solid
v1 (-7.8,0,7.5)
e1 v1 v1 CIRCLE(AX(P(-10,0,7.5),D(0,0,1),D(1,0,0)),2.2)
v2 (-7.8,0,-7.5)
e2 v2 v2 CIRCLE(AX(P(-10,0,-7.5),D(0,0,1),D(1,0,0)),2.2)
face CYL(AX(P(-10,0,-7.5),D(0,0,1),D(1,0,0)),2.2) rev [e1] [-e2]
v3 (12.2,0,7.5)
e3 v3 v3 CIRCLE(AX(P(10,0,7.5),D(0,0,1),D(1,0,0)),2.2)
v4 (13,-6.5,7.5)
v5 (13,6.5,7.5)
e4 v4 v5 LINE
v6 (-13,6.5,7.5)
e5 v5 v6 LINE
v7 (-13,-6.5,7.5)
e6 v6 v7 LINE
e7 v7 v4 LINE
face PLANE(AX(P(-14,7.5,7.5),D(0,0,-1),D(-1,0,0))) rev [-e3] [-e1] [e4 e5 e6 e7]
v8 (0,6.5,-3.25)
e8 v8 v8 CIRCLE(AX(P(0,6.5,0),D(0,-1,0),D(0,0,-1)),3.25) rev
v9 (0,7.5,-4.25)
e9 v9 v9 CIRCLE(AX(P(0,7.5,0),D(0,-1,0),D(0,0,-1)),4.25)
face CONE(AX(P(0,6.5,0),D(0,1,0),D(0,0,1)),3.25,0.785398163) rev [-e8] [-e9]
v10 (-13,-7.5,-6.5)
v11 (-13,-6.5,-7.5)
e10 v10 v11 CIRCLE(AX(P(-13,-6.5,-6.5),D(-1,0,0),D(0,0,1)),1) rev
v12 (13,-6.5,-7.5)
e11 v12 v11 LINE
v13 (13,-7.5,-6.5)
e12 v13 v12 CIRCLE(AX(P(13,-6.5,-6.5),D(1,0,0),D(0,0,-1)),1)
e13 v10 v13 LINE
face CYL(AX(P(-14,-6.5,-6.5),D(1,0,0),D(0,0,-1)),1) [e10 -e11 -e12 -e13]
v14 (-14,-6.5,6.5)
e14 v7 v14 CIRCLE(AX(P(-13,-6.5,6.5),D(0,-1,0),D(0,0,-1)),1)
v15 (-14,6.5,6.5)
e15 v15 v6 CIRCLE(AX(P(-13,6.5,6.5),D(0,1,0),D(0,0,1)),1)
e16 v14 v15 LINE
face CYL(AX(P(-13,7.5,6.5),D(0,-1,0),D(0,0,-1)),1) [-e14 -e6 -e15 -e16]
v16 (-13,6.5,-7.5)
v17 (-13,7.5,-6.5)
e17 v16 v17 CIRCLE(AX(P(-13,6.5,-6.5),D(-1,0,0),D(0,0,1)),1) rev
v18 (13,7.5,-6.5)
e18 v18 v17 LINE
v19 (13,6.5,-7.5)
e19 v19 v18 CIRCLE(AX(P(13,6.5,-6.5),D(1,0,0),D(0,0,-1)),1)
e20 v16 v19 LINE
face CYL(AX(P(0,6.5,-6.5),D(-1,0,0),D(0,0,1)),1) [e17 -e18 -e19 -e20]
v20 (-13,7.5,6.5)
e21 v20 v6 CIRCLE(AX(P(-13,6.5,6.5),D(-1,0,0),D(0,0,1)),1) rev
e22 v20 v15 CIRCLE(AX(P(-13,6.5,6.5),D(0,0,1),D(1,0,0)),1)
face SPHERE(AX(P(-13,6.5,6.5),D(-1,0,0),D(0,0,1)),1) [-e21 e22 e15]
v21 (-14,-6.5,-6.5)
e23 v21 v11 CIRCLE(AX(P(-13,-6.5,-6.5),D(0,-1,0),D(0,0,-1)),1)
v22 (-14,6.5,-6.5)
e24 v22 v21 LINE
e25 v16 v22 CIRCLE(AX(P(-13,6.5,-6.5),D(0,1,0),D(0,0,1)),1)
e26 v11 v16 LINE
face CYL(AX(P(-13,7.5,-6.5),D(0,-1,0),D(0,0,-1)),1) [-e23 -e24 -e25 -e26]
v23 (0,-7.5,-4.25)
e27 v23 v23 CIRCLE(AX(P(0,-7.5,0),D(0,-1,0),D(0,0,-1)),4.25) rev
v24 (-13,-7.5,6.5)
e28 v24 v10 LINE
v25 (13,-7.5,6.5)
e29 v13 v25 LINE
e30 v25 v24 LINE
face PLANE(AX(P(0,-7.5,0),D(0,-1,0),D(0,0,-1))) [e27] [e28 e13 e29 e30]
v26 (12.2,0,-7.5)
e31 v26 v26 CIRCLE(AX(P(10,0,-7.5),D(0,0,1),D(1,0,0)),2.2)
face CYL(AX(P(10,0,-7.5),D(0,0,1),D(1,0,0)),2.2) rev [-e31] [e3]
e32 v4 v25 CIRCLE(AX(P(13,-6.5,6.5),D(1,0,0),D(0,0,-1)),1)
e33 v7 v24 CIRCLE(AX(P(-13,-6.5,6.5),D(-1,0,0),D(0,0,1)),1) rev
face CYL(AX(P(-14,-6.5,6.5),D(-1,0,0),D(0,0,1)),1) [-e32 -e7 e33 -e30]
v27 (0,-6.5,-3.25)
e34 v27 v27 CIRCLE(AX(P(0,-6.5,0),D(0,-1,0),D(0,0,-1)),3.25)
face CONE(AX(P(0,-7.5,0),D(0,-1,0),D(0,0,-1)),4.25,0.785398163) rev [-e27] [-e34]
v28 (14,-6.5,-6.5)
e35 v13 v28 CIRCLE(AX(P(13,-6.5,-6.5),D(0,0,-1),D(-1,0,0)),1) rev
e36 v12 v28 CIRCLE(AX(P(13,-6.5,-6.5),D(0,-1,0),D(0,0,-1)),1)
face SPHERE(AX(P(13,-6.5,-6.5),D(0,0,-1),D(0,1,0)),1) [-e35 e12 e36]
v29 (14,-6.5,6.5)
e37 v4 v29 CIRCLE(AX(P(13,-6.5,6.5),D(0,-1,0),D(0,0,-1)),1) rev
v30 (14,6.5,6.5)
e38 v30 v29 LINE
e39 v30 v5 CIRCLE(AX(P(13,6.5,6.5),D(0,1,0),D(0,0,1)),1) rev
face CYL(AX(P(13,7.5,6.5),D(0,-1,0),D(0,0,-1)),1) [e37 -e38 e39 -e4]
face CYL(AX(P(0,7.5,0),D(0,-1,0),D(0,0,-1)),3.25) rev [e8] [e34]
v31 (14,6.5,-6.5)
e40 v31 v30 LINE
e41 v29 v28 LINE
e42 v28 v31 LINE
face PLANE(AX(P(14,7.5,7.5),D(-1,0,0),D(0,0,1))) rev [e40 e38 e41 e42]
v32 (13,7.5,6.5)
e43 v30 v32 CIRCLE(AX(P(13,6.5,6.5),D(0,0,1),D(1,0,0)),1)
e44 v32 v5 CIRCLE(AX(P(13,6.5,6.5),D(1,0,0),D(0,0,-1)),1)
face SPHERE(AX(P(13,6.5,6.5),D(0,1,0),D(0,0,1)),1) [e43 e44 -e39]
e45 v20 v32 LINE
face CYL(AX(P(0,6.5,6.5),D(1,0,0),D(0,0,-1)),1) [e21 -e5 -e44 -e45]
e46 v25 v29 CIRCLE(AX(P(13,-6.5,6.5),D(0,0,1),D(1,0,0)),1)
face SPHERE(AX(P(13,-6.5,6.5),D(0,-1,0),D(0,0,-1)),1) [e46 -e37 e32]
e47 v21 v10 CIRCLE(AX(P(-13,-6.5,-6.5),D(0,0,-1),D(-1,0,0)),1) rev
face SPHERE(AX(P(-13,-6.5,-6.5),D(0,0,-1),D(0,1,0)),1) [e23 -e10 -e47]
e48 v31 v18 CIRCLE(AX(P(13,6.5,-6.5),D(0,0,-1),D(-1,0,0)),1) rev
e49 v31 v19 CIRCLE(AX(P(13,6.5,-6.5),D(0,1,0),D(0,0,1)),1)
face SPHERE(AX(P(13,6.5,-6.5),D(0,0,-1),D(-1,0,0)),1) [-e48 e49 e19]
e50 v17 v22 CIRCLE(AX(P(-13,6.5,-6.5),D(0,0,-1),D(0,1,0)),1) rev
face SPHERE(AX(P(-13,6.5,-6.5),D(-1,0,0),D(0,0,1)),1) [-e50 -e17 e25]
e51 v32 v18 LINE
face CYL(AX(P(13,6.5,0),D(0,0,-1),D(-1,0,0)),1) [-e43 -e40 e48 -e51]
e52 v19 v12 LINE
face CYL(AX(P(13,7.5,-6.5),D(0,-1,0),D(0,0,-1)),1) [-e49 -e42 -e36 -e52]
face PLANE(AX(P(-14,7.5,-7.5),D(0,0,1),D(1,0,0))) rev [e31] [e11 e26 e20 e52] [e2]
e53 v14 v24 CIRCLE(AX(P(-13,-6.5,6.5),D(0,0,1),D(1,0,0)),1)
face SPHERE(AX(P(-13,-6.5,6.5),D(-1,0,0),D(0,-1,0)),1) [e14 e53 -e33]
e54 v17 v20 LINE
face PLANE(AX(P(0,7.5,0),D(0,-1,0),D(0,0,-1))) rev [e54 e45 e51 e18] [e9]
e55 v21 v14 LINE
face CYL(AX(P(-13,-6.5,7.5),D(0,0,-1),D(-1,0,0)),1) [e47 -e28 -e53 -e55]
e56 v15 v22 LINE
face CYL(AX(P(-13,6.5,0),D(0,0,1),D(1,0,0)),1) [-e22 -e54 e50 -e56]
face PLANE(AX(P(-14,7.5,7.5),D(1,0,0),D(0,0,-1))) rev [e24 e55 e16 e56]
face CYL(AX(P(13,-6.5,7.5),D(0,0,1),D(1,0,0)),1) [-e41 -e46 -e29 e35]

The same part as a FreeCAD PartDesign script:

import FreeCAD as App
import Part
import Sketcher

V = App.Vector
Q = App.Units.Quantity


def edges_at(feature, points):
    """Names of the edges that pass closest to the given points."""
    edges = feature.Shape.Edges
    near = lambda p: min(range(len(edges)), key=lambda i: edges[i].distToShape(Part.Vertex(*p))[0])
    return sorted({f"Edge{near(p) + 1}" for p in points})

doc = App.newDocument("Part")
body = doc.addObject("PartDesign::Body", "Body")

sketch1 = body.newObject("Sketcher::SketchObject", "Sketch")
sketch1.AttachmentSupport = (doc.getObject("XZ_Plane"), [""])
sketch1.MapMode = "FlatFace"
sketch1.addGeometry([
    Part.LineSegment(V(-14, -7.5, 0), V(-14, 7.5, 0)),
    Part.LineSegment(V(-14, 7.5, 0), V(14, 7.5, 0)),
    Part.LineSegment(V(14, 7.5, 0), V(14, -7.5, 0)),
    Part.LineSegment(V(14, -7.5, 0), V(-14, -7.5, 0)),
    Part.Circle(V(0, 0, 0), V(0, 0, 1), 3.25),
], False)
sketch1.addConstraint([
    Sketcher.Constraint("Coincident", 0, 2, 1, 1),
    Sketcher.Constraint("Coincident", 1, 2, 2, 1),
    Sketcher.Constraint("Coincident", 2, 2, 3, 1),
    Sketcher.Constraint("Coincident", 3, 2, 0, 1),
    Sketcher.Constraint("Vertical", 0),
    Sketcher.Constraint("Horizontal", 1),
    Sketcher.Constraint("Vertical", 2),
    Sketcher.Constraint("Horizontal", 3),
    Sketcher.Constraint("Coincident", 4, 3, -1, 1),
    Sketcher.Constraint("Symmetric", 0, 2, 2, 2, -1, 1),
    Sketcher.Constraint("Diameter", 4, Q("6.5 mm")),
    Sketcher.Constraint("DistanceX", 1, 1, 1, 2, Q("28 mm")),
    Sketcher.Constraint("DistanceY", 0, 1, 0, 2, Q("15 mm")),
])
pad1 = body.newObject("PartDesign::Pad", "Pad")
pad1.Profile = sketch1
pad1.Length = 15
pad1.Midplane = True

sketch2 = body.newObject("Sketcher::SketchObject", "Sketch001")
sketch2.AttachmentSupport = (doc.getObject("XY_Plane"), [""])
sketch2.MapMode = "FlatFace"
sketch2.AttachmentOffset = App.Placement(V(0, 0, 7.5), App.Rotation())
sketch2.addGeometry([
    Part.Circle(V(-10, 0, 0), V(0, 0, 1), 2.2),
    Part.Circle(V(10, 0, 0), V(0, 0, 1), 2.2),
], False)
sketch2.addConstraint([
    Sketcher.Constraint("Equal", 0, 1),
    Sketcher.Constraint("Symmetric", 0, 3, 1, 3, -1, 1),
    Sketcher.Constraint("PointOnObject", 0, 3, -1),
    Sketcher.Constraint("Diameter", 0, Q("4.4 mm")),
    Sketcher.Constraint("DistanceX", 0, 3, -1, 1, Q("10 mm")),
])
pocket1 = body.newObject("PartDesign::Pocket", "Pocket")
pocket1.Profile = sketch2
pocket1.Length = 15
doc.recompute()

fillet = body.newObject("PartDesign::Fillet", "Fillet")
fillet.Base = (pocket1, edges_at(pocket1, [
    (-14, 7.5, 0),
    (0, 7.5, 7.5),
    (14, 7.5, 0),
    (0, -7.5, 7.5),
    (-14, -7.5, 0),
    (0, -7.5, -7.5),
    (14, -7.5, 0),
    (14, 0, 7.5),
    (-14, 0, 7.5),
    (-14, 0, -7.5),
    (14, 0, -7.5),
    (0, 7.5, -7.5),
]))
fillet.Radius = 1
doc.recompute()

chamfer = body.newObject("PartDesign::Chamfer", "Chamfer")
chamfer.Base = (fillet, edges_at(fillet, [(0, -7.5, -3.25), (0, 7.5, -3.25)]))
chamfer.Size = 1

doc.recompute()
